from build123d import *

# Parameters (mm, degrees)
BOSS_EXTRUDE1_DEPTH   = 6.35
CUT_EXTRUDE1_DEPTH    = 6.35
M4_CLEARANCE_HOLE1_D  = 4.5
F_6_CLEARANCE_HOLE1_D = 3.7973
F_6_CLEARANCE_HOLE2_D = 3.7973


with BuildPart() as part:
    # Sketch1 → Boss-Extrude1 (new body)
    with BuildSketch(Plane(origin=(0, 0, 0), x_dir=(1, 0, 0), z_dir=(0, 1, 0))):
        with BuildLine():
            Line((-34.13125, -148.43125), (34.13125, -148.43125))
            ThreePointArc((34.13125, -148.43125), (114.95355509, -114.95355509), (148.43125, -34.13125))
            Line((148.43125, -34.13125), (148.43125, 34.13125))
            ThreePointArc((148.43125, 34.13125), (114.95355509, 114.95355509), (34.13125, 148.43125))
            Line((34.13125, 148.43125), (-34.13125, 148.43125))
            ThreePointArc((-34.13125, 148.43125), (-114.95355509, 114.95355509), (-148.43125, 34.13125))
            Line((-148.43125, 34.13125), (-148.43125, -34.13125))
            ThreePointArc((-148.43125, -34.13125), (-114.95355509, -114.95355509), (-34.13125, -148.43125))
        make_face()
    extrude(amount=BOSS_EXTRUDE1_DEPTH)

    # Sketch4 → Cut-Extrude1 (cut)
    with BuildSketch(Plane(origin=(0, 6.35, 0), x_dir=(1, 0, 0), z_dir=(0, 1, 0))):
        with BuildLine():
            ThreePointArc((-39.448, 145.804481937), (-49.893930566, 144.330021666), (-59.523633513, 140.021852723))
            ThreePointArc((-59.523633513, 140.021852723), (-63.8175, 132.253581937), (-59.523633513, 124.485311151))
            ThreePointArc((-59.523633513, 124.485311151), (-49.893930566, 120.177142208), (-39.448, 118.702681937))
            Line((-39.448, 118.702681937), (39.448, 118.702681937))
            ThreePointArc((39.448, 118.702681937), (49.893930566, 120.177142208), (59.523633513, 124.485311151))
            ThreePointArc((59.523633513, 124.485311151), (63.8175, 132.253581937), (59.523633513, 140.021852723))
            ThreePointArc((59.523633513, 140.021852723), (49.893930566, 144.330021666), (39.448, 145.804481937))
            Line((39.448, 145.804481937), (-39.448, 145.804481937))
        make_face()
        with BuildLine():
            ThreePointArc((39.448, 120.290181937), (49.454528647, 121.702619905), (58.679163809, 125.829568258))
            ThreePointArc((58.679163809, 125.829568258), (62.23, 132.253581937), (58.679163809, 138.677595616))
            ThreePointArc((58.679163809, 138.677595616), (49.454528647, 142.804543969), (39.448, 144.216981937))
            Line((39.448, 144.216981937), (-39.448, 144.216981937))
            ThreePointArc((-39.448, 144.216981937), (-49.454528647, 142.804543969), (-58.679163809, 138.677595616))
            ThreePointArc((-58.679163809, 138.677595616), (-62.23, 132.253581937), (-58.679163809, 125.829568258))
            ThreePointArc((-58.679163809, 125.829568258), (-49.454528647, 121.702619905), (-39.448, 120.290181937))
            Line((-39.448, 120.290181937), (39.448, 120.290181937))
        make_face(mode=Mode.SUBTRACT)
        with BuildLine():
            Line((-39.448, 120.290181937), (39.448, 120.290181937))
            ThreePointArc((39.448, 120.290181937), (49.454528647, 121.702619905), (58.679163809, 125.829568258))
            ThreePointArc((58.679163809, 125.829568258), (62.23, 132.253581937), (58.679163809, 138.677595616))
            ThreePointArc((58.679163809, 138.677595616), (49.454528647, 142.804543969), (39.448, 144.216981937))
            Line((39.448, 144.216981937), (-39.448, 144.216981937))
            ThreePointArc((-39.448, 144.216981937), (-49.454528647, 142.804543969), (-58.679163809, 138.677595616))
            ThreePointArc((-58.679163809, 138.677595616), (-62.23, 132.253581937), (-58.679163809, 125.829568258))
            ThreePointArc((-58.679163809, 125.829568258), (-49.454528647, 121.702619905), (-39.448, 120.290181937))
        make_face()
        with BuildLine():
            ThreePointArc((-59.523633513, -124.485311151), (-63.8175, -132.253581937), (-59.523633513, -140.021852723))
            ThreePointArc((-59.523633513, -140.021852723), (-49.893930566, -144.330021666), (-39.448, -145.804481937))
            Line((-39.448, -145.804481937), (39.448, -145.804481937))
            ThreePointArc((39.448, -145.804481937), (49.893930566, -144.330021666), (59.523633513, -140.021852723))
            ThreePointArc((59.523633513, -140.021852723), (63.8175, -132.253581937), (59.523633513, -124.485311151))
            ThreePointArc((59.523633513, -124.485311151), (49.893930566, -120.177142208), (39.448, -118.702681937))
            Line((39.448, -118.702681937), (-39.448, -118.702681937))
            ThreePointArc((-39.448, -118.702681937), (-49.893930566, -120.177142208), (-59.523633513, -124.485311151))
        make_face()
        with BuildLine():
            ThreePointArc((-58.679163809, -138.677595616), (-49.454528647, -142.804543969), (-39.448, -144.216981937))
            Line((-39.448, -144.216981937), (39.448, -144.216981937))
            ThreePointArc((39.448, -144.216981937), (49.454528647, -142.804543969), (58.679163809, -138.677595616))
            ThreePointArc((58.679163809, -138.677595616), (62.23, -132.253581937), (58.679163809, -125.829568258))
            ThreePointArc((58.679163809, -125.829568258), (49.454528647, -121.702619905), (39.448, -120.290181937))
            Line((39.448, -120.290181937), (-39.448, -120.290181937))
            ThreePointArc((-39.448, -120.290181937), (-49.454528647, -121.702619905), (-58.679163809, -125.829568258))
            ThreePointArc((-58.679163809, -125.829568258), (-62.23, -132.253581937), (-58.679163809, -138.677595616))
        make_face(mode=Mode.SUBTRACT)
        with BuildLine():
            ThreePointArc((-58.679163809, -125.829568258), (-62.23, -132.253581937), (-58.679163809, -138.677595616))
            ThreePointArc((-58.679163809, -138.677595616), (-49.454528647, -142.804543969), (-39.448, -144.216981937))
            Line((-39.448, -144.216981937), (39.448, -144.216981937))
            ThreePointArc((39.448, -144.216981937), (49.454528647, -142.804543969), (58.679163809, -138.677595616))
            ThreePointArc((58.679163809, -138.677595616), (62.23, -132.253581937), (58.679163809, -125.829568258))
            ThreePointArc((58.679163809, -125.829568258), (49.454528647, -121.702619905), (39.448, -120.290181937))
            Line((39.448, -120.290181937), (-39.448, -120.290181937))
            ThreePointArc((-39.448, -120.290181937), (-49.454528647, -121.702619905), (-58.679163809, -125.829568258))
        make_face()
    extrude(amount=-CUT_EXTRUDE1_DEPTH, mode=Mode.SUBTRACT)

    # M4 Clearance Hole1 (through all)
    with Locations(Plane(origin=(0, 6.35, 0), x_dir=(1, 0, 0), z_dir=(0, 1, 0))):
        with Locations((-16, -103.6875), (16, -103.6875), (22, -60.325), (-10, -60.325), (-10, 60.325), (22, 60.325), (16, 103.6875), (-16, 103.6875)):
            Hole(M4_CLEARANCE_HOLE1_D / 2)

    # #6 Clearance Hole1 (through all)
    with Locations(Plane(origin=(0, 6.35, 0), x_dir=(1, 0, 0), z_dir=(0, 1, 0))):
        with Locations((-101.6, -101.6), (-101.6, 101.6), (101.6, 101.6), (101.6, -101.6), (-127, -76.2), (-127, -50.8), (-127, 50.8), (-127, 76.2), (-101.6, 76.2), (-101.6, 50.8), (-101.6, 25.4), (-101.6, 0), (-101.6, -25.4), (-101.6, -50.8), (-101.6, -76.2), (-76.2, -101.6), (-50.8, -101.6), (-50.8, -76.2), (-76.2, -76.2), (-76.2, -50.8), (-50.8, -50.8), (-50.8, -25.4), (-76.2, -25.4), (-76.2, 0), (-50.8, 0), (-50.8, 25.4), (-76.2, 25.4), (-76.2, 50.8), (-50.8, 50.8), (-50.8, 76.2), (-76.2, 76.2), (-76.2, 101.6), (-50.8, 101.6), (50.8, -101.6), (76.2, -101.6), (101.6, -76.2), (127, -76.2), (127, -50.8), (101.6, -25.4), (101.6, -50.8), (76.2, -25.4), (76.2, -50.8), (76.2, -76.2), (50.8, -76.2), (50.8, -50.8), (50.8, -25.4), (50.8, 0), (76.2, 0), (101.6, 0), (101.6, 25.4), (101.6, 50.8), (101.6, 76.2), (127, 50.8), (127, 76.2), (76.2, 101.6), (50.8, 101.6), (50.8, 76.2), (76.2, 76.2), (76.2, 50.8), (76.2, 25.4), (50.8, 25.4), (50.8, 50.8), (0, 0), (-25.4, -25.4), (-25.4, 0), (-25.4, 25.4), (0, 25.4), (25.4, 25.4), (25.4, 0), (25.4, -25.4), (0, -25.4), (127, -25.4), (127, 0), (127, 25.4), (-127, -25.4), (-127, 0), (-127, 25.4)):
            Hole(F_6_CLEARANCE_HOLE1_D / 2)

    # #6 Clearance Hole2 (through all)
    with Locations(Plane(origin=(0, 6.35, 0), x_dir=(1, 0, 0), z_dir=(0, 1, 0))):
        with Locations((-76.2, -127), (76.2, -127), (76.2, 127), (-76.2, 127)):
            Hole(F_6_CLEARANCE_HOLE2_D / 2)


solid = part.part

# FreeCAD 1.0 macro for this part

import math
import FreeCAD as App
import Part
import Sketcher
from FreeCAD import Vector
Q = App.Units.Quantity

doc = App.newDocument("Part")
body = doc.addObject("PartDesign::Body", "Body")

sketch1 = doc.addObject("Sketcher::SketchObject", "Sketch")
body.addObject(sketch1)
sketch1.AttachmentSupport = (doc.XZ_Plane, [""])
sketch1.MapMode = "FlatFace"
sketch1.addGeometry([
    Part.LineSegment(Vector(-34, 148, 0), Vector(34, 148, 0)),
    Part.ArcOfCircle(Part.Circle(Vector(34, 34, 0), Vector(0, 0, 1), 114), math.radians(0), math.radians(90)),
    Part.LineSegment(Vector(148, 34, 0), Vector(148, -34, 0)),
    Part.ArcOfCircle(Part.Circle(Vector(34, -34, 0), Vector(0, 0, 1), 114), math.radians(-90), math.radians(0)),
    Part.LineSegment(Vector(34, -148, 0), Vector(-34, -148, 0)),
    Part.ArcOfCircle(Part.Circle(Vector(-34, -34, 0), Vector(0, 0, 1), 114), math.radians(180), math.radians(270)),
    Part.LineSegment(Vector(-148, -34, 0), Vector(-148, 34, 0)),
    Part.ArcOfCircle(Part.Circle(Vector(-34, 34, 0), Vector(0, 0, 1), 114), math.radians(90), math.radians(180)),
], False)
sketch1.addConstraint([
    Sketcher.Constraint("Tangent", 0, 2, 1, 2),
    Sketcher.Constraint("Tangent", 1, 1, 2, 1),
    Sketcher.Constraint("Tangent", 2, 2, 3, 2),
    Sketcher.Constraint("Tangent", 3, 1, 4, 1),
    Sketcher.Constraint("Tangent", 4, 2, 5, 2),
    Sketcher.Constraint("Tangent", 5, 1, 6, 1),
    Sketcher.Constraint("Tangent", 6, 2, 7, 2),
    Sketcher.Constraint("Tangent", 7, 1, 0, 1),
    Sketcher.Constraint("Horizontal", 0),
    Sketcher.Constraint("Vertical", 2),
    Sketcher.Constraint("Horizontal", 4),
    Sketcher.Constraint("Vertical", 6),
    Sketcher.Constraint("Equal", 1, 3),
    Sketcher.Constraint("Equal", 3, 5),
    Sketcher.Constraint("Equal", 5, 7),
    Sketcher.Constraint("Symmetric", 1, 3, 5, 3, -1, 1),
    Sketcher.Constraint("Equal", 4, 2),
    Sketcher.Constraint("Radius", 1, Q("4.5 in")),
    Sketcher.Constraint("DistanceX", 0, 1, 0, 2, Q("2.6875 in")),
])
pad1 = doc.addObject("PartDesign::Pad", "Pad")
body.addObject(pad1)
pad1.Profile = sketch1
pad1.Length = Q("0.25 in")
pad1.Reversed = True

sketch2 = doc.addObject("Sketcher::SketchObject", "Sketch001")
body.addObject(sketch2)
sketch2.AttachmentSupport = (doc.XZ_Plane, [""])
sketch2.MapMode = "FlatFace"
sketch2.AttachmentOffset = App.Placement(Vector(0, 0, -0.25 * 25.4), App.Rotation())
sketch2.addGeometry([
    Part.ArcOfCircle(Part.Circle(Vector(-39, -108, 0), Vector(0, 0, 1), 38), math.radians(-122), math.radians(-90)),
    Part.ArcOfCircle(Part.Circle(Vector(-55, -132, 0), Vector(0, 0, 1), 9), math.radians(122), math.radians(238)),
    Part.ArcOfCircle(Part.Circle(Vector(-39, -156, 0), Vector(0, 0, 1), 38), math.radians(90), math.radians(122)),
    Part.LineSegment(Vector(-39, -119, 0), Vector(39, -119, 0)),
    Part.ArcOfCircle(Part.Circle(Vector(39, -156, 0), Vector(0, 0, 1), 38), math.radians(58), math.radians(90)),
    Part.ArcOfCircle(Part.Circle(Vector(55, -132, 0), Vector(0, 0, 1), 9), math.radians(-58), math.radians(58)),
    Part.ArcOfCircle(Part.Circle(Vector(39, -108, 0), Vector(0, 0, 1), 38), math.radians(-90), math.radians(-58)),
    Part.LineSegment(Vector(39, -146, 0), Vector(-39, -146, 0)),
    Part.ArcOfCircle(Part.Circle(Vector(-55, 132, 0), Vector(0, 0, 1), 9), math.radians(122), math.radians(238)),
    Part.ArcOfCircle(Part.Circle(Vector(-39, 108, 0), Vector(0, 0, 1), 38), math.radians(90), math.radians(122)),
    Part.LineSegment(Vector(-39, 146, 0), Vector(39, 146, 0)),
    Part.ArcOfCircle(Part.Circle(Vector(39, 108, 0), Vector(0, 0, 1), 38), math.radians(58), math.radians(90)),
    Part.ArcOfCircle(Part.Circle(Vector(55, 132, 0), Vector(0, 0, 1), 9), math.radians(-58), math.radians(58)),
    Part.ArcOfCircle(Part.Circle(Vector(39, 156, 0), Vector(0, 0, 1), 38), math.radians(-90), math.radians(-58)),
    Part.LineSegment(Vector(39, 119, 0), Vector(-39, 119, 0)),
    Part.ArcOfCircle(Part.Circle(Vector(-39, 156, 0), Vector(0, 0, 1), 38), math.radians(-122), math.radians(-90)),
], False)
sketch2.addConstraint([
    Sketcher.Constraint("Tangent", 0, 1, 1, 2),
    Sketcher.Constraint("Tangent", 1, 1, 2, 2),
    Sketcher.Constraint("Tangent", 2, 1, 3, 1),
    Sketcher.Constraint("Tangent", 3, 2, 4, 2),
    Sketcher.Constraint("Tangent", 4, 1, 5, 2),
    Sketcher.Constraint("Tangent", 5, 1, 6, 2),
    Sketcher.Constraint("Tangent", 6, 1, 7, 1),
    Sketcher.Constraint("Tangent", 7, 2, 0, 2),
    Sketcher.Constraint("Tangent", 8, 1, 9, 2),
    Sketcher.Constraint("Tangent", 9, 1, 10, 1),
    Sketcher.Constraint("Tangent", 10, 2, 11, 2),
    Sketcher.Constraint("Tangent", 11, 1, 12, 2),
    Sketcher.Constraint("Tangent", 12, 1, 13, 2),
    Sketcher.Constraint("Tangent", 13, 1, 14, 1),
    Sketcher.Constraint("Tangent", 14, 2, 15, 2),
    Sketcher.Constraint("Tangent", 15, 1, 8, 2),
    Sketcher.Constraint("Horizontal", 3),
    Sketcher.Constraint("Horizontal", 7),
    Sketcher.Constraint("Horizontal", 10),
    Sketcher.Constraint("Horizontal", 14),
    Sketcher.Constraint("Equal", 0, 2),
    Sketcher.Constraint("Equal", 2, 4),
    Sketcher.Constraint("Equal", 1, 5),
    Sketcher.Constraint("Equal", 4, 6),
    Sketcher.Constraint("Equal", 5, 8),
    Sketcher.Constraint("Equal", 6, 9),
    Sketcher.Constraint("Equal", 9, 11),
    Sketcher.Constraint("Equal", 8, 12),
    Sketcher.Constraint("Equal", 11, 13),
    Sketcher.Constraint("Equal", 13, 15),
    Sketcher.Constraint("Symmetric", 5, 3, 8, 3, -1, 1),
    Sketcher.Constraint("Symmetric", 0, 3, 11, 3, -1, 1),
    Sketcher.Constraint("Symmetric", 2, 3, 13, 3, -1, 1),
    Sketcher.Constraint("Symmetric", 1, 3, 5, 3, -2),
    Sketcher.Constraint("Vertical", 0, 3, 2, 3),
    Sketcher.Constraint("Radius", 0, 37.739741),
    Sketcher.Constraint("DistanceY", 6, 1, 3, 2, Q("1.067 in")),
    Sketcher.Constraint("DistanceX", 3, 1, 3, 2, 78.896),
    Sketcher.Constraint("Radius", 1, 9.173937),
    Sketcher.Constraint("DistanceY", 0, 3, -1, 1, 108.064741),
])
pocket1 = doc.addObject("PartDesign::Pocket", "Pocket")
body.addObject(pocket1)
pocket1.Profile = sketch2
pocket1.Length = Q("0.25 in")
pocket1.Reversed = True

sketch3 = doc.addObject("Sketcher::SketchObject", "Sketch002")
body.addObject(sketch3)
sketch3.AttachmentSupport = (doc.XZ_Plane, [""])
sketch3.MapMode = "FlatFace"
sketch3.AttachmentOffset = App.Placement(Vector(0, 0, -0.25 * 25.4), App.Rotation())
sketch3.addGeometry([
    Part.Circle(Vector(-16, 103.7, 0), Vector(0, 0, 1), 2.2),
    Part.Circle(Vector(16, 103.7, 0), Vector(0, 0, 1), 2.2),
    Part.Circle(Vector(22, 60.3, 0), Vector(0, 0, 1), 2.2),
    Part.Circle(Vector(-10, 60.3, 0), Vector(0, 0, 1), 2.2),
    Part.Circle(Vector(-10, -60.3, 0), Vector(0, 0, 1), 2.2),
    Part.Circle(Vector(22, -60.3, 0), Vector(0, 0, 1), 2.2),
    Part.Circle(Vector(16, -103.7, 0), Vector(0, 0, 1), 2.2),
    Part.Circle(Vector(-16, -103.7, 0), Vector(0, 0, 1), 2.2),
], False)
sketch3.addConstraint([
    Sketcher.Constraint("Equal", 0, 1),
    Sketcher.Constraint("Equal", 1, 2),
    Sketcher.Constraint("Equal", 2, 3),
    Sketcher.Constraint("Equal", 3, 4),
    Sketcher.Constraint("Equal", 4, 5),
    Sketcher.Constraint("Equal", 5, 6),
    Sketcher.Constraint("Equal", 6, 7),
    Sketcher.Constraint("Symmetric", 0, 3, 6, 3, -1, 1),
    Sketcher.Constraint("Symmetric", 1, 3, 7, 3, -1, 1),
    Sketcher.Constraint("Symmetric", 0, 3, 1, 3, -2),
    Sketcher.Constraint("Symmetric", 3, 3, 4, 3, -1),
    Sketcher.Constraint("Symmetric", 2, 3, 5, 3, -1),
    Sketcher.Constraint("Horizontal", 2, 3, 3, 3),
    Sketcher.Constraint("Diameter", 0, 4.5),
    Sketcher.Constraint("DistanceY", 4, 3, 3, 3, Q("4.75 in")),
    Sketcher.Constraint("DistanceX", 0, 3, -1, 1, 16.0),
    Sketcher.Constraint("DistanceY", -1, 1, 0, 3, 103.6875),
    Sketcher.Constraint("DistanceX", -1, 1, 2, 3, 22.0),
    Sketcher.Constraint("DistanceX", 3, 3, -1, 1, 10.0),
])
doc.recompute()
hole = doc.addObject("PartDesign::Hole", "Hole")
body.addObject(hole)
hole.Profile = sketch3
hole.ThreadType = "None"
hole.Diameter = 4.5
hole.DepthType = "ThroughAll"
hole.Reversed = True

sketch4 = doc.addObject("Sketcher::SketchObject", "Sketch003")
body.addObject(sketch4)
sketch4.AttachmentSupport = (doc.XZ_Plane, [""])
sketch4.MapMode = "FlatFace"
sketch4.AttachmentOffset = App.Placement(Vector(0, 0, -0.25 * 25.4), App.Rotation())
sketch4.addGeometry([
    Part.Circle(Vector(-101.6, 101.6, 0), Vector(0, 0, 1), 1.9),
    Part.Circle(Vector(-101.6, -101.6, 0), Vector(0, 0, 1), 1.9),
    Part.Circle(Vector(101.6, -101.6, 0), Vector(0, 0, 1), 1.9),
    Part.Circle(Vector(101.6, 101.6, 0), Vector(0, 0, 1), 1.9),
    Part.Circle(Vector(-127, 76.2, 0), Vector(0, 0, 1), 1.9),
    Part.Circle(Vector(-127, 50.8, 0), Vector(0, 0, 1), 1.9),
    Part.Circle(Vector(-127, -50.8, 0), Vector(0, 0, 1), 1.9),
    Part.Circle(Vector(-127, -76.2, 0), Vector(0, 0, 1), 1.9),
    Part.Circle(Vector(-101.6, -76.2, 0), Vector(0, 0, 1), 1.9),
    Part.Circle(Vector(-101.6, -50.8, 0), Vector(0, 0, 1), 1.9),
    Part.Circle(Vector(-101.6, -25.4, 0), Vector(0, 0, 1), 1.9),
    Part.Circle(Vector(-101.6, 0, 0), Vector(0, 0, 1), 1.9),
    Part.Circle(Vector(-101.6, 25.4, 0), Vector(0, 0, 1), 1.9),
    Part.Circle(Vector(-101.6, 50.8, 0), Vector(0, 0, 1), 1.9),
    Part.Circle(Vector(-101.6, 76.2, 0), Vector(0, 0, 1), 1.9),
    Part.Circle(Vector(-76.2, 101.6, 0), Vector(0, 0, 1), 1.9),
    Part.Circle(Vector(-50.8, 101.6, 0), Vector(0, 0, 1), 1.9),
    Part.Circle(Vector(-50.8, 76.2, 0), Vector(0, 0, 1), 1.9),
    Part.Circle(Vector(-76.2, 76.2, 0), Vector(0, 0, 1), 1.9),
    Part.Circle(Vector(-76.2, 50.8, 0), Vector(0, 0, 1), 1.9),
    Part.Circle(Vector(-50.8, 50.8, 0), Vector(0, 0, 1), 1.9),
    Part.Circle(Vector(-50.8, 25.4, 0), Vector(0, 0, 1), 1.9),
    Part.Circle(Vector(-76.2, 25.4, 0), Vector(0, 0, 1), 1.9),
    Part.Circle(Vector(-76.2, 0, 0), Vector(0, 0, 1), 1.9),
    Part.Circle(Vector(-50.8, 0, 0), Vector(0, 0, 1), 1.9),
    Part.Circle(Vector(-50.8, -25.4, 0), Vector(0, 0, 1), 1.9),
    Part.Circle(Vector(-76.2, -25.4, 0), Vector(0, 0, 1), 1.9),
    Part.Circle(Vector(-76.2, -50.8, 0), Vector(0, 0, 1), 1.9),
    Part.Circle(Vector(-50.8, -50.8, 0), Vector(0, 0, 1), 1.9),
    Part.Circle(Vector(-50.8, -76.2, 0), Vector(0, 0, 1), 1.9),
    Part.Circle(Vector(-76.2, -76.2, 0), Vector(0, 0, 1), 1.9),
    Part.Circle(Vector(-76.2, -101.6, 0), Vector(0, 0, 1), 1.9),
    Part.Circle(Vector(-50.8, -101.6, 0), Vector(0, 0, 1), 1.9),
    Part.Circle(Vector(50.8, 101.6, 0), Vector(0, 0, 1), 1.9),
    Part.Circle(Vector(76.2, 101.6, 0), Vector(0, 0, 1), 1.9),
    Part.Circle(Vector(101.6, 76.2, 0), Vector(0, 0, 1), 1.9),
    Part.Circle(Vector(127, 76.2, 0), Vector(0, 0, 1), 1.9),
    Part.Circle(Vector(127, 50.8, 0), Vector(0, 0, 1), 1.9),
    Part.Circle(Vector(101.6, 25.4, 0), Vector(0, 0, 1), 1.9),
    Part.Circle(Vector(101.6, 50.8, 0), Vector(0, 0, 1), 1.9),
    Part.Circle(Vector(76.2, 25.4, 0), Vector(0, 0, 1), 1.9),
    Part.Circle(Vector(76.2, 50.8, 0), Vector(0, 0, 1), 1.9),
    Part.Circle(Vector(76.2, 76.2, 0), Vector(0, 0, 1), 1.9),
    Part.Circle(Vector(50.8, 76.2, 0), Vector(0, 0, 1), 1.9),
    Part.Circle(Vector(50.8, 50.8, 0), Vector(0, 0, 1), 1.9),
    Part.Circle(Vector(50.8, 25.4, 0), Vector(0, 0, 1), 1.9),
    Part.Circle(Vector(50.8, 0, 0), Vector(0, 0, 1), 1.9),
    Part.Circle(Vector(76.2, 0, 0), Vector(0, 0, 1), 1.9),
    Part.Circle(Vector(101.6, 0, 0), Vector(0, 0, 1), 1.9),
    Part.Circle(Vector(101.6, -25.4, 0), Vector(0, 0, 1), 1.9),
    Part.Circle(Vector(101.6, -50.8, 0), Vector(0, 0, 1), 1.9),
    Part.Circle(Vector(101.6, -76.2, 0), Vector(0, 0, 1), 1.9),
    Part.Circle(Vector(127, -50.8, 0), Vector(0, 0, 1), 1.9),
    Part.Circle(Vector(127, -76.2, 0), Vector(0, 0, 1), 1.9),
    Part.Circle(Vector(76.2, -101.6, 0), Vector(0, 0, 1), 1.9),
    Part.Circle(Vector(50.8, -101.6, 0), Vector(0, 0, 1), 1.9),
    Part.Circle(Vector(50.8, -76.2, 0), Vector(0, 0, 1), 1.9),
    Part.Circle(Vector(76.2, -76.2, 0), Vector(0, 0, 1), 1.9),
    Part.Circle(Vector(76.2, -50.8, 0), Vector(0, 0, 1), 1.9),
    Part.Circle(Vector(76.2, -25.4, 0), Vector(0, 0, 1), 1.9),
    Part.Circle(Vector(50.8, -25.4, 0), Vector(0, 0, 1), 1.9),
    Part.Circle(Vector(50.8, -50.8, 0), Vector(0, 0, 1), 1.9),
    Part.Circle(Vector(0, 0, 0), Vector(0, 0, 1), 1.9),
    Part.Circle(Vector(-25.4, 25.4, 0), Vector(0, 0, 1), 1.9),
    Part.Circle(Vector(-25.4, 0, 0), Vector(0, 0, 1), 1.9),
    Part.Circle(Vector(-25.4, -25.4, 0), Vector(0, 0, 1), 1.9),
    Part.Circle(Vector(0, -25.4, 0), Vector(0, 0, 1), 1.9),
    Part.Circle(Vector(25.4, -25.4, 0), Vector(0, 0, 1), 1.9),
    Part.Circle(Vector(25.4, 0, 0), Vector(0, 0, 1), 1.9),
    Part.Circle(Vector(25.4, 25.4, 0), Vector(0, 0, 1), 1.9),
    Part.Circle(Vector(0, 25.4, 0), Vector(0, 0, 1), 1.9),
    Part.Circle(Vector(127, 25.4, 0), Vector(0, 0, 1), 1.9),
    Part.Circle(Vector(127, 0, 0), Vector(0, 0, 1), 1.9),
    Part.Circle(Vector(127, -25.4, 0), Vector(0, 0, 1), 1.9),
    Part.Circle(Vector(-127, 25.4, 0), Vector(0, 0, 1), 1.9),
    Part.Circle(Vector(-127, 0, 0), Vector(0, 0, 1), 1.9),
    Part.Circle(Vector(-127, -25.4, 0), Vector(0, 0, 1), 1.9),
], False)
sketch4.addConstraint([
    Sketcher.Constraint("Coincident", 62, 3, -1, 1),
    Sketcher.Constraint("Equal", 0, 1),
    Sketcher.Constraint("Equal", 1, 2),
    Sketcher.Constraint("Equal", 2, 3),
    Sketcher.Constraint("Equal", 3, 4),
    Sketcher.Constraint("Equal", 4, 5),
    Sketcher.Constraint("Equal", 5, 6),
    Sketcher.Constraint("Equal", 6, 7),
    Sketcher.Constraint("Equal", 7, 8),
    Sketcher.Constraint("Equal", 8, 9),
    Sketcher.Constraint("Equal", 9, 10),
    Sketcher.Constraint("Equal", 10, 11),
    Sketcher.Constraint("Equal", 11, 12),
    Sketcher.Constraint("Equal", 12, 13),
    Sketcher.Constraint("Equal", 13, 14),
    Sketcher.Constraint("Equal", 14, 15),
    Sketcher.Constraint("Equal", 15, 16),
    Sketcher.Constraint("Equal", 16, 17),
    Sketcher.Constraint("Equal", 17, 18),
    Sketcher.Constraint("Equal", 18, 19),
    Sketcher.Constraint("Equal", 19, 20),
    Sketcher.Constraint("Equal", 20, 21),
    Sketcher.Constraint("Equal", 21, 22),
    Sketcher.Constraint("Equal", 22, 23),
    Sketcher.Constraint("Equal", 23, 24),
    Sketcher.Constraint("Equal", 24, 25),
    Sketcher.Constraint("Equal", 25, 26),
    Sketcher.Constraint("Equal", 26, 27),
    Sketcher.Constraint("Equal", 27, 28),
    Sketcher.Constraint("Equal", 28, 29),
    Sketcher.Constraint("Equal", 29, 30),
    Sketcher.Constraint("Equal", 30, 31),
    Sketcher.Constraint("Equal", 31, 32),
    Sketcher.Constraint("Equal", 32, 33),
    Sketcher.Constraint("Equal", 33, 34),
    Sketcher.Constraint("Equal", 34, 35),
    Sketcher.Constraint("Equal", 35, 36),
    Sketcher.Constraint("Equal", 36, 37),
    Sketcher.Constraint("Equal", 37, 38),
    Sketcher.Constraint("Equal", 38, 39),
    Sketcher.Constraint("Equal", 39, 40),
    Sketcher.Constraint("Equal", 40, 41),
    Sketcher.Constraint("Equal", 41, 42),
    Sketcher.Constraint("Equal", 42, 43),
    Sketcher.Constraint("Equal", 43, 44),
    Sketcher.Constraint("Equal", 44, 45),
    Sketcher.Constraint("Equal", 45, 46),
    Sketcher.Constraint("Equal", 46, 47),
    Sketcher.Constraint("Equal", 47, 48),
    Sketcher.Constraint("Equal", 48, 49),
    Sketcher.Constraint("Equal", 49, 50),
    Sketcher.Constraint("Equal", 50, 51),
    Sketcher.Constraint("Equal", 51, 52),
    Sketcher.Constraint("Equal", 52, 53),
    Sketcher.Constraint("Equal", 53, 54),
    Sketcher.Constraint("Equal", 54, 55),
    Sketcher.Constraint("Equal", 55, 56),
    Sketcher.Constraint("Equal", 56, 57),
    Sketcher.Constraint("Equal", 57, 58),
    Sketcher.Constraint("Equal", 58, 59),
    Sketcher.Constraint("Equal", 59, 60),
    Sketcher.Constraint("Equal", 60, 61),
    Sketcher.Constraint("Equal", 61, 62),
    Sketcher.Constraint("Equal", 62, 63),
    Sketcher.Constraint("Equal", 63, 64),
    Sketcher.Constraint("Equal", 64, 65),
    Sketcher.Constraint("Equal", 65, 66),
    Sketcher.Constraint("Equal", 66, 67),
    Sketcher.Constraint("Equal", 67, 68),
    Sketcher.Constraint("Equal", 68, 69),
    Sketcher.Constraint("Equal", 69, 70),
    Sketcher.Constraint("Equal", 70, 71),
    Sketcher.Constraint("Equal", 71, 72),
    Sketcher.Constraint("Equal", 72, 73),
    Sketcher.Constraint("Equal", 73, 74),
    Sketcher.Constraint("Equal", 74, 75),
    Sketcher.Constraint("Equal", 75, 76),
    Sketcher.Constraint("Symmetric", 0, 3, 2, 3, -1, 1),
    Sketcher.Constraint("Symmetric", 1, 3, 3, 3, -1, 1),
    Sketcher.Constraint("Symmetric", 32, 3, 33, 3, -1, 1),
    Sketcher.Constraint("Symmetric", 31, 3, 34, 3, -1, 1),
    Sketcher.Constraint("Symmetric", 8, 3, 35, 3, -1, 1),
    Sketcher.Constraint("Symmetric", 7, 3, 36, 3, -1, 1),
    Sketcher.Constraint("Symmetric", 6, 3, 37, 3, -1, 1),
    Sketcher.Constraint("Symmetric", 10, 3, 38, 3, -1, 1),
    Sketcher.Constraint("Symmetric", 9, 3, 39, 3, -1, 1),
    Sketcher.Constraint("Symmetric", 26, 3, 40, 3, -1, 1),
    Sketcher.Constraint("Symmetric", 27, 3, 41, 3, -1, 1),
    Sketcher.Constraint("Symmetric", 30, 3, 42, 3, -1, 1),
    Sketcher.Constraint("Symmetric", 29, 3, 43, 3, -1, 1),
    Sketcher.Constraint("Symmetric", 28, 3, 44, 3, -1, 1),
    Sketcher.Constraint("Symmetric", 25, 3, 45, 3, -1, 1),
    Sketcher.Constraint("Symmetric", 24, 3, 46, 3, -1, 1),
    Sketcher.Constraint("Symmetric", 23, 3, 47, 3, -1, 1),
    Sketcher.Constraint("Symmetric", 11, 3, 48, 3, -1, 1),
    Sketcher.Constraint("Symmetric", 12, 3, 49, 3, -1, 1),
    Sketcher.Constraint("Symmetric", 13, 3, 50, 3, -1, 1),
    Sketcher.Constraint("Symmetric", 14, 3, 51, 3, -1, 1),
    Sketcher.Constraint("Symmetric", 5, 3, 52, 3, -1, 1),
    Sketcher.Constraint("Symmetric", 4, 3, 53, 3, -1, 1),
    Sketcher.Constraint("Symmetric", 15, 3, 54, 3, -1, 1),
    Sketcher.Constraint("Symmetric", 16, 3, 55, 3, -1, 1),
    Sketcher.Constraint("Symmetric", 17, 3, 56, 3, -1, 1),
    Sketcher.Constraint("Symmetric", 18, 3, 57, 3, -1, 1),
    Sketcher.Constraint("Symmetric", 19, 3, 58, 3, -1, 1),
    Sketcher.Constraint("Symmetric", 22, 3, 59, 3, -1, 1),
    Sketcher.Constraint("Symmetric", 21, 3, 60, 3, -1, 1),
    Sketcher.Constraint("Symmetric", 20, 3, 61, 3, -1, 1),
    Sketcher.Constraint("Symmetric", 63, 3, 67, 3, -1, 1),
    Sketcher.Constraint("Symmetric", 64, 3, 68, 3, -1, 1),
    Sketcher.Constraint("Symmetric", 65, 3, 69, 3, -1, 1),
    Sketcher.Constraint("Symmetric", 66, 3, 70, 3, -1, 1),
    Sketcher.Constraint("Symmetric", 73, 3, 74, 3, -1, 1),
    Sketcher.Constraint("Symmetric", 72, 3, 75, 3, -1, 1),
    Sketcher.Constraint("Symmetric", 71, 3, 76, 3, -1, 1),
    Sketcher.Constraint("Symmetric", 1, 3, 2, 3, -2),
    Sketcher.Constraint("Symmetric", 16, 3, 33, 3, -2),
    Sketcher.Constraint("Symmetric", 15, 3, 34, 3, -2),
    Sketcher.Constraint("Symmetric", 14, 3, 35, 3, -2),
    Sketcher.Constraint("Symmetric", 4, 3, 36, 3, -2),
    Sketcher.Constraint("Symmetric", 5, 3, 37, 3, -2),
    Sketcher.Constraint("Symmetric", 12, 3, 38, 3, -2),
    Sketcher.Constraint("Symmetric", 13, 3, 39, 3, -2),
    Sketcher.Constraint("Symmetric", 22, 3, 40, 3, -2),
    Sketcher.Constraint("Symmetric", 19, 3, 41, 3, -2),
    Sketcher.Constraint("Symmetric", 18, 3, 42, 3, -2),
    Sketcher.Constraint("Symmetric", 17, 3, 43, 3, -2),
    Sketcher.Constraint("Symmetric", 20, 3, 44, 3, -2),
    Sketcher.Constraint("Symmetric", 21, 3, 45, 3, -2),
    Sketcher.Constraint("Symmetric", 65, 3, 67, 3, -2),
    Sketcher.Constraint("Symmetric", 71, 3, 74, 3, -2),
    Sketcher.Constraint("PointOnObject", 11, 3, -1),
    Sketcher.Constraint("PointOnObject", 23, 3, -1),
    Sketcher.Constraint("PointOnObject", 24, 3, -1),
    Sketcher.Constraint("PointOnObject", 64, 3, -1),
    Sketcher.Constraint("PointOnObject", 66, 3, -2),
    Sketcher.Constraint("PointOnObject", 72, 3, -1),
    Sketcher.Constraint("Horizontal", 7, 3, 8, 3),
    Sketcher.Constraint("Horizontal", 6, 3, 9, 3),
    Sketcher.Constraint("Horizontal", 3, 3, 15, 3),
    Sketcher.Constraint("Horizontal", 15, 3, 16, 3),
    Sketcher.Constraint("Horizontal", 14, 3, 17, 3),
    Sketcher.Constraint("Horizontal", 17, 3, 18, 3),
    Sketcher.Constraint("Horizontal", 13, 3, 19, 3),
    Sketcher.Constraint("Horizontal", 19, 3, 20, 3),
    Sketcher.Constraint("Horizontal", 12, 3, 21, 3),
    Sketcher.Constraint("Horizontal", 21, 3, 22, 3),
    Sketcher.Constraint("Horizontal", 45, 3, 63, 3),
    Sketcher.Constraint("Horizontal", 65, 3, 66, 3),
    Sketcher.Constraint("Horizontal", 70, 3, 71, 3),
    Sketcher.Constraint("Vertical", 4, 3, 5, 3),
    Sketcher.Constraint("Vertical", 1, 3, 8, 3),
    Sketcher.Constraint("Vertical", 8, 3, 9, 3),
    Sketcher.Constraint("Vertical", 9, 3, 10, 3),
    Sketcher.Constraint("Vertical", 10, 3, 11, 3),
    Sketcher.Constraint("Vertical", 16, 3, 17, 3),
    Sketcher.Constraint("Vertical", 15, 3, 18, 3),
    Sketcher.Constraint("Vertical", 18, 3, 19, 3),
    Sketcher.Constraint("Vertical", 17, 3, 20, 3),
    Sketcher.Constraint("Vertical", 20, 3, 21, 3),
    Sketcher.Constraint("Vertical", 19, 3, 22, 3),
    Sketcher.Constraint("Vertical", 22, 3, 23, 3),
    Sketcher.Constraint("Vertical", 21, 3, 24, 3),
    Sketcher.Constraint("Vertical", 63, 3, 64, 3),
    Sketcher.Constraint("Vertical", 53, 3, 71, 3),
    Sketcher.Constraint("Vertical", 71, 3, 72, 3),
    Sketcher.Constraint("DistanceX", 0, 3, -1, 1, Q("4 in")),
    Sketcher.Constraint("DistanceY", -1, 1, 0, 3, Q("4 in")),
    Sketcher.Constraint("DistanceX", 4, 3, -1, 1, Q("5 in")),
    Sketcher.Constraint("DistanceY", -1, 1, 4, 3, Q("3 in")),
    Sketcher.Constraint("DistanceY", -1, 1, 5, 3, Q("2 in")),
    Sketcher.Constraint("DistanceY", 10, 3, -1, 1, Q("1 in")),
    Sketcher.Constraint("DistanceX", 15, 3, -1, 1, Q("3 in")),
    Sketcher.Constraint("DistanceX", 16, 3, -1, 1, Q("2 in")),
    Sketcher.Constraint("DistanceX", 63, 3, -1, 1, Q("1 in")),
    Sketcher.Constraint("Diameter", 0, Q("0.1495 in")),
])
doc.recompute()
hole2 = doc.addObject("PartDesign::Hole", "Hole001")
body.addObject(hole2)
hole2.Profile = sketch4
hole2.ThreadType = "None"
hole2.Diameter = Q("0.1495 in")
hole2.DepthType = "ThroughAll"
hole2.Reversed = True

sketch5 = doc.addObject("Sketcher::SketchObject", "Sketch004")
body.addObject(sketch5)
sketch5.AttachmentSupport = (doc.XZ_Plane, [""])
sketch5.MapMode = "FlatFace"
sketch5.AttachmentOffset = App.Placement(Vector(0, 0, -0.25 * 25.4), App.Rotation())
sketch5.addGeometry([
    Part.Circle(Vector(-76.2, 127, 0), Vector(0, 0, 1), 1.9),
    Part.Circle(Vector(76.2, 127, 0), Vector(0, 0, 1), 1.9),
    Part.Circle(Vector(76.2, -127, 0), Vector(0, 0, 1), 1.9),
    Part.Circle(Vector(-76.2, -127, 0), Vector(0, 0, 1), 1.9),
], False)
sketch5.addConstraint([
    Sketcher.Constraint("Equal", 0, 1),
    Sketcher.Constraint("Equal", 1, 2),
    Sketcher.Constraint("Equal", 2, 3),
    Sketcher.Constraint("Symmetric", 0, 3, 2, 3, -1, 1),
    Sketcher.Constraint("Symmetric", 1, 3, 3, 3, -1, 1),
    Sketcher.Constraint("Symmetric", 0, 3, 1, 3, -2),
    Sketcher.Constraint("DistanceX", 0, 3, -1, 1, Q("3 in")),
    Sketcher.Constraint("DistanceY", -1, 1, 0, 3, Q("5 in")),
    Sketcher.Constraint("Diameter", 0, Q("0.1495 in")),
])
doc.recompute()
hole3 = doc.addObject("PartDesign::Hole", "Hole002")
body.addObject(hole3)
hole3.Profile = sketch5
hole3.ThreadType = "None"
hole3.Diameter = Q("0.1495 in")
hole3.DepthType = "ThroughAll"
hole3.Reversed = True

doc.recompute()
